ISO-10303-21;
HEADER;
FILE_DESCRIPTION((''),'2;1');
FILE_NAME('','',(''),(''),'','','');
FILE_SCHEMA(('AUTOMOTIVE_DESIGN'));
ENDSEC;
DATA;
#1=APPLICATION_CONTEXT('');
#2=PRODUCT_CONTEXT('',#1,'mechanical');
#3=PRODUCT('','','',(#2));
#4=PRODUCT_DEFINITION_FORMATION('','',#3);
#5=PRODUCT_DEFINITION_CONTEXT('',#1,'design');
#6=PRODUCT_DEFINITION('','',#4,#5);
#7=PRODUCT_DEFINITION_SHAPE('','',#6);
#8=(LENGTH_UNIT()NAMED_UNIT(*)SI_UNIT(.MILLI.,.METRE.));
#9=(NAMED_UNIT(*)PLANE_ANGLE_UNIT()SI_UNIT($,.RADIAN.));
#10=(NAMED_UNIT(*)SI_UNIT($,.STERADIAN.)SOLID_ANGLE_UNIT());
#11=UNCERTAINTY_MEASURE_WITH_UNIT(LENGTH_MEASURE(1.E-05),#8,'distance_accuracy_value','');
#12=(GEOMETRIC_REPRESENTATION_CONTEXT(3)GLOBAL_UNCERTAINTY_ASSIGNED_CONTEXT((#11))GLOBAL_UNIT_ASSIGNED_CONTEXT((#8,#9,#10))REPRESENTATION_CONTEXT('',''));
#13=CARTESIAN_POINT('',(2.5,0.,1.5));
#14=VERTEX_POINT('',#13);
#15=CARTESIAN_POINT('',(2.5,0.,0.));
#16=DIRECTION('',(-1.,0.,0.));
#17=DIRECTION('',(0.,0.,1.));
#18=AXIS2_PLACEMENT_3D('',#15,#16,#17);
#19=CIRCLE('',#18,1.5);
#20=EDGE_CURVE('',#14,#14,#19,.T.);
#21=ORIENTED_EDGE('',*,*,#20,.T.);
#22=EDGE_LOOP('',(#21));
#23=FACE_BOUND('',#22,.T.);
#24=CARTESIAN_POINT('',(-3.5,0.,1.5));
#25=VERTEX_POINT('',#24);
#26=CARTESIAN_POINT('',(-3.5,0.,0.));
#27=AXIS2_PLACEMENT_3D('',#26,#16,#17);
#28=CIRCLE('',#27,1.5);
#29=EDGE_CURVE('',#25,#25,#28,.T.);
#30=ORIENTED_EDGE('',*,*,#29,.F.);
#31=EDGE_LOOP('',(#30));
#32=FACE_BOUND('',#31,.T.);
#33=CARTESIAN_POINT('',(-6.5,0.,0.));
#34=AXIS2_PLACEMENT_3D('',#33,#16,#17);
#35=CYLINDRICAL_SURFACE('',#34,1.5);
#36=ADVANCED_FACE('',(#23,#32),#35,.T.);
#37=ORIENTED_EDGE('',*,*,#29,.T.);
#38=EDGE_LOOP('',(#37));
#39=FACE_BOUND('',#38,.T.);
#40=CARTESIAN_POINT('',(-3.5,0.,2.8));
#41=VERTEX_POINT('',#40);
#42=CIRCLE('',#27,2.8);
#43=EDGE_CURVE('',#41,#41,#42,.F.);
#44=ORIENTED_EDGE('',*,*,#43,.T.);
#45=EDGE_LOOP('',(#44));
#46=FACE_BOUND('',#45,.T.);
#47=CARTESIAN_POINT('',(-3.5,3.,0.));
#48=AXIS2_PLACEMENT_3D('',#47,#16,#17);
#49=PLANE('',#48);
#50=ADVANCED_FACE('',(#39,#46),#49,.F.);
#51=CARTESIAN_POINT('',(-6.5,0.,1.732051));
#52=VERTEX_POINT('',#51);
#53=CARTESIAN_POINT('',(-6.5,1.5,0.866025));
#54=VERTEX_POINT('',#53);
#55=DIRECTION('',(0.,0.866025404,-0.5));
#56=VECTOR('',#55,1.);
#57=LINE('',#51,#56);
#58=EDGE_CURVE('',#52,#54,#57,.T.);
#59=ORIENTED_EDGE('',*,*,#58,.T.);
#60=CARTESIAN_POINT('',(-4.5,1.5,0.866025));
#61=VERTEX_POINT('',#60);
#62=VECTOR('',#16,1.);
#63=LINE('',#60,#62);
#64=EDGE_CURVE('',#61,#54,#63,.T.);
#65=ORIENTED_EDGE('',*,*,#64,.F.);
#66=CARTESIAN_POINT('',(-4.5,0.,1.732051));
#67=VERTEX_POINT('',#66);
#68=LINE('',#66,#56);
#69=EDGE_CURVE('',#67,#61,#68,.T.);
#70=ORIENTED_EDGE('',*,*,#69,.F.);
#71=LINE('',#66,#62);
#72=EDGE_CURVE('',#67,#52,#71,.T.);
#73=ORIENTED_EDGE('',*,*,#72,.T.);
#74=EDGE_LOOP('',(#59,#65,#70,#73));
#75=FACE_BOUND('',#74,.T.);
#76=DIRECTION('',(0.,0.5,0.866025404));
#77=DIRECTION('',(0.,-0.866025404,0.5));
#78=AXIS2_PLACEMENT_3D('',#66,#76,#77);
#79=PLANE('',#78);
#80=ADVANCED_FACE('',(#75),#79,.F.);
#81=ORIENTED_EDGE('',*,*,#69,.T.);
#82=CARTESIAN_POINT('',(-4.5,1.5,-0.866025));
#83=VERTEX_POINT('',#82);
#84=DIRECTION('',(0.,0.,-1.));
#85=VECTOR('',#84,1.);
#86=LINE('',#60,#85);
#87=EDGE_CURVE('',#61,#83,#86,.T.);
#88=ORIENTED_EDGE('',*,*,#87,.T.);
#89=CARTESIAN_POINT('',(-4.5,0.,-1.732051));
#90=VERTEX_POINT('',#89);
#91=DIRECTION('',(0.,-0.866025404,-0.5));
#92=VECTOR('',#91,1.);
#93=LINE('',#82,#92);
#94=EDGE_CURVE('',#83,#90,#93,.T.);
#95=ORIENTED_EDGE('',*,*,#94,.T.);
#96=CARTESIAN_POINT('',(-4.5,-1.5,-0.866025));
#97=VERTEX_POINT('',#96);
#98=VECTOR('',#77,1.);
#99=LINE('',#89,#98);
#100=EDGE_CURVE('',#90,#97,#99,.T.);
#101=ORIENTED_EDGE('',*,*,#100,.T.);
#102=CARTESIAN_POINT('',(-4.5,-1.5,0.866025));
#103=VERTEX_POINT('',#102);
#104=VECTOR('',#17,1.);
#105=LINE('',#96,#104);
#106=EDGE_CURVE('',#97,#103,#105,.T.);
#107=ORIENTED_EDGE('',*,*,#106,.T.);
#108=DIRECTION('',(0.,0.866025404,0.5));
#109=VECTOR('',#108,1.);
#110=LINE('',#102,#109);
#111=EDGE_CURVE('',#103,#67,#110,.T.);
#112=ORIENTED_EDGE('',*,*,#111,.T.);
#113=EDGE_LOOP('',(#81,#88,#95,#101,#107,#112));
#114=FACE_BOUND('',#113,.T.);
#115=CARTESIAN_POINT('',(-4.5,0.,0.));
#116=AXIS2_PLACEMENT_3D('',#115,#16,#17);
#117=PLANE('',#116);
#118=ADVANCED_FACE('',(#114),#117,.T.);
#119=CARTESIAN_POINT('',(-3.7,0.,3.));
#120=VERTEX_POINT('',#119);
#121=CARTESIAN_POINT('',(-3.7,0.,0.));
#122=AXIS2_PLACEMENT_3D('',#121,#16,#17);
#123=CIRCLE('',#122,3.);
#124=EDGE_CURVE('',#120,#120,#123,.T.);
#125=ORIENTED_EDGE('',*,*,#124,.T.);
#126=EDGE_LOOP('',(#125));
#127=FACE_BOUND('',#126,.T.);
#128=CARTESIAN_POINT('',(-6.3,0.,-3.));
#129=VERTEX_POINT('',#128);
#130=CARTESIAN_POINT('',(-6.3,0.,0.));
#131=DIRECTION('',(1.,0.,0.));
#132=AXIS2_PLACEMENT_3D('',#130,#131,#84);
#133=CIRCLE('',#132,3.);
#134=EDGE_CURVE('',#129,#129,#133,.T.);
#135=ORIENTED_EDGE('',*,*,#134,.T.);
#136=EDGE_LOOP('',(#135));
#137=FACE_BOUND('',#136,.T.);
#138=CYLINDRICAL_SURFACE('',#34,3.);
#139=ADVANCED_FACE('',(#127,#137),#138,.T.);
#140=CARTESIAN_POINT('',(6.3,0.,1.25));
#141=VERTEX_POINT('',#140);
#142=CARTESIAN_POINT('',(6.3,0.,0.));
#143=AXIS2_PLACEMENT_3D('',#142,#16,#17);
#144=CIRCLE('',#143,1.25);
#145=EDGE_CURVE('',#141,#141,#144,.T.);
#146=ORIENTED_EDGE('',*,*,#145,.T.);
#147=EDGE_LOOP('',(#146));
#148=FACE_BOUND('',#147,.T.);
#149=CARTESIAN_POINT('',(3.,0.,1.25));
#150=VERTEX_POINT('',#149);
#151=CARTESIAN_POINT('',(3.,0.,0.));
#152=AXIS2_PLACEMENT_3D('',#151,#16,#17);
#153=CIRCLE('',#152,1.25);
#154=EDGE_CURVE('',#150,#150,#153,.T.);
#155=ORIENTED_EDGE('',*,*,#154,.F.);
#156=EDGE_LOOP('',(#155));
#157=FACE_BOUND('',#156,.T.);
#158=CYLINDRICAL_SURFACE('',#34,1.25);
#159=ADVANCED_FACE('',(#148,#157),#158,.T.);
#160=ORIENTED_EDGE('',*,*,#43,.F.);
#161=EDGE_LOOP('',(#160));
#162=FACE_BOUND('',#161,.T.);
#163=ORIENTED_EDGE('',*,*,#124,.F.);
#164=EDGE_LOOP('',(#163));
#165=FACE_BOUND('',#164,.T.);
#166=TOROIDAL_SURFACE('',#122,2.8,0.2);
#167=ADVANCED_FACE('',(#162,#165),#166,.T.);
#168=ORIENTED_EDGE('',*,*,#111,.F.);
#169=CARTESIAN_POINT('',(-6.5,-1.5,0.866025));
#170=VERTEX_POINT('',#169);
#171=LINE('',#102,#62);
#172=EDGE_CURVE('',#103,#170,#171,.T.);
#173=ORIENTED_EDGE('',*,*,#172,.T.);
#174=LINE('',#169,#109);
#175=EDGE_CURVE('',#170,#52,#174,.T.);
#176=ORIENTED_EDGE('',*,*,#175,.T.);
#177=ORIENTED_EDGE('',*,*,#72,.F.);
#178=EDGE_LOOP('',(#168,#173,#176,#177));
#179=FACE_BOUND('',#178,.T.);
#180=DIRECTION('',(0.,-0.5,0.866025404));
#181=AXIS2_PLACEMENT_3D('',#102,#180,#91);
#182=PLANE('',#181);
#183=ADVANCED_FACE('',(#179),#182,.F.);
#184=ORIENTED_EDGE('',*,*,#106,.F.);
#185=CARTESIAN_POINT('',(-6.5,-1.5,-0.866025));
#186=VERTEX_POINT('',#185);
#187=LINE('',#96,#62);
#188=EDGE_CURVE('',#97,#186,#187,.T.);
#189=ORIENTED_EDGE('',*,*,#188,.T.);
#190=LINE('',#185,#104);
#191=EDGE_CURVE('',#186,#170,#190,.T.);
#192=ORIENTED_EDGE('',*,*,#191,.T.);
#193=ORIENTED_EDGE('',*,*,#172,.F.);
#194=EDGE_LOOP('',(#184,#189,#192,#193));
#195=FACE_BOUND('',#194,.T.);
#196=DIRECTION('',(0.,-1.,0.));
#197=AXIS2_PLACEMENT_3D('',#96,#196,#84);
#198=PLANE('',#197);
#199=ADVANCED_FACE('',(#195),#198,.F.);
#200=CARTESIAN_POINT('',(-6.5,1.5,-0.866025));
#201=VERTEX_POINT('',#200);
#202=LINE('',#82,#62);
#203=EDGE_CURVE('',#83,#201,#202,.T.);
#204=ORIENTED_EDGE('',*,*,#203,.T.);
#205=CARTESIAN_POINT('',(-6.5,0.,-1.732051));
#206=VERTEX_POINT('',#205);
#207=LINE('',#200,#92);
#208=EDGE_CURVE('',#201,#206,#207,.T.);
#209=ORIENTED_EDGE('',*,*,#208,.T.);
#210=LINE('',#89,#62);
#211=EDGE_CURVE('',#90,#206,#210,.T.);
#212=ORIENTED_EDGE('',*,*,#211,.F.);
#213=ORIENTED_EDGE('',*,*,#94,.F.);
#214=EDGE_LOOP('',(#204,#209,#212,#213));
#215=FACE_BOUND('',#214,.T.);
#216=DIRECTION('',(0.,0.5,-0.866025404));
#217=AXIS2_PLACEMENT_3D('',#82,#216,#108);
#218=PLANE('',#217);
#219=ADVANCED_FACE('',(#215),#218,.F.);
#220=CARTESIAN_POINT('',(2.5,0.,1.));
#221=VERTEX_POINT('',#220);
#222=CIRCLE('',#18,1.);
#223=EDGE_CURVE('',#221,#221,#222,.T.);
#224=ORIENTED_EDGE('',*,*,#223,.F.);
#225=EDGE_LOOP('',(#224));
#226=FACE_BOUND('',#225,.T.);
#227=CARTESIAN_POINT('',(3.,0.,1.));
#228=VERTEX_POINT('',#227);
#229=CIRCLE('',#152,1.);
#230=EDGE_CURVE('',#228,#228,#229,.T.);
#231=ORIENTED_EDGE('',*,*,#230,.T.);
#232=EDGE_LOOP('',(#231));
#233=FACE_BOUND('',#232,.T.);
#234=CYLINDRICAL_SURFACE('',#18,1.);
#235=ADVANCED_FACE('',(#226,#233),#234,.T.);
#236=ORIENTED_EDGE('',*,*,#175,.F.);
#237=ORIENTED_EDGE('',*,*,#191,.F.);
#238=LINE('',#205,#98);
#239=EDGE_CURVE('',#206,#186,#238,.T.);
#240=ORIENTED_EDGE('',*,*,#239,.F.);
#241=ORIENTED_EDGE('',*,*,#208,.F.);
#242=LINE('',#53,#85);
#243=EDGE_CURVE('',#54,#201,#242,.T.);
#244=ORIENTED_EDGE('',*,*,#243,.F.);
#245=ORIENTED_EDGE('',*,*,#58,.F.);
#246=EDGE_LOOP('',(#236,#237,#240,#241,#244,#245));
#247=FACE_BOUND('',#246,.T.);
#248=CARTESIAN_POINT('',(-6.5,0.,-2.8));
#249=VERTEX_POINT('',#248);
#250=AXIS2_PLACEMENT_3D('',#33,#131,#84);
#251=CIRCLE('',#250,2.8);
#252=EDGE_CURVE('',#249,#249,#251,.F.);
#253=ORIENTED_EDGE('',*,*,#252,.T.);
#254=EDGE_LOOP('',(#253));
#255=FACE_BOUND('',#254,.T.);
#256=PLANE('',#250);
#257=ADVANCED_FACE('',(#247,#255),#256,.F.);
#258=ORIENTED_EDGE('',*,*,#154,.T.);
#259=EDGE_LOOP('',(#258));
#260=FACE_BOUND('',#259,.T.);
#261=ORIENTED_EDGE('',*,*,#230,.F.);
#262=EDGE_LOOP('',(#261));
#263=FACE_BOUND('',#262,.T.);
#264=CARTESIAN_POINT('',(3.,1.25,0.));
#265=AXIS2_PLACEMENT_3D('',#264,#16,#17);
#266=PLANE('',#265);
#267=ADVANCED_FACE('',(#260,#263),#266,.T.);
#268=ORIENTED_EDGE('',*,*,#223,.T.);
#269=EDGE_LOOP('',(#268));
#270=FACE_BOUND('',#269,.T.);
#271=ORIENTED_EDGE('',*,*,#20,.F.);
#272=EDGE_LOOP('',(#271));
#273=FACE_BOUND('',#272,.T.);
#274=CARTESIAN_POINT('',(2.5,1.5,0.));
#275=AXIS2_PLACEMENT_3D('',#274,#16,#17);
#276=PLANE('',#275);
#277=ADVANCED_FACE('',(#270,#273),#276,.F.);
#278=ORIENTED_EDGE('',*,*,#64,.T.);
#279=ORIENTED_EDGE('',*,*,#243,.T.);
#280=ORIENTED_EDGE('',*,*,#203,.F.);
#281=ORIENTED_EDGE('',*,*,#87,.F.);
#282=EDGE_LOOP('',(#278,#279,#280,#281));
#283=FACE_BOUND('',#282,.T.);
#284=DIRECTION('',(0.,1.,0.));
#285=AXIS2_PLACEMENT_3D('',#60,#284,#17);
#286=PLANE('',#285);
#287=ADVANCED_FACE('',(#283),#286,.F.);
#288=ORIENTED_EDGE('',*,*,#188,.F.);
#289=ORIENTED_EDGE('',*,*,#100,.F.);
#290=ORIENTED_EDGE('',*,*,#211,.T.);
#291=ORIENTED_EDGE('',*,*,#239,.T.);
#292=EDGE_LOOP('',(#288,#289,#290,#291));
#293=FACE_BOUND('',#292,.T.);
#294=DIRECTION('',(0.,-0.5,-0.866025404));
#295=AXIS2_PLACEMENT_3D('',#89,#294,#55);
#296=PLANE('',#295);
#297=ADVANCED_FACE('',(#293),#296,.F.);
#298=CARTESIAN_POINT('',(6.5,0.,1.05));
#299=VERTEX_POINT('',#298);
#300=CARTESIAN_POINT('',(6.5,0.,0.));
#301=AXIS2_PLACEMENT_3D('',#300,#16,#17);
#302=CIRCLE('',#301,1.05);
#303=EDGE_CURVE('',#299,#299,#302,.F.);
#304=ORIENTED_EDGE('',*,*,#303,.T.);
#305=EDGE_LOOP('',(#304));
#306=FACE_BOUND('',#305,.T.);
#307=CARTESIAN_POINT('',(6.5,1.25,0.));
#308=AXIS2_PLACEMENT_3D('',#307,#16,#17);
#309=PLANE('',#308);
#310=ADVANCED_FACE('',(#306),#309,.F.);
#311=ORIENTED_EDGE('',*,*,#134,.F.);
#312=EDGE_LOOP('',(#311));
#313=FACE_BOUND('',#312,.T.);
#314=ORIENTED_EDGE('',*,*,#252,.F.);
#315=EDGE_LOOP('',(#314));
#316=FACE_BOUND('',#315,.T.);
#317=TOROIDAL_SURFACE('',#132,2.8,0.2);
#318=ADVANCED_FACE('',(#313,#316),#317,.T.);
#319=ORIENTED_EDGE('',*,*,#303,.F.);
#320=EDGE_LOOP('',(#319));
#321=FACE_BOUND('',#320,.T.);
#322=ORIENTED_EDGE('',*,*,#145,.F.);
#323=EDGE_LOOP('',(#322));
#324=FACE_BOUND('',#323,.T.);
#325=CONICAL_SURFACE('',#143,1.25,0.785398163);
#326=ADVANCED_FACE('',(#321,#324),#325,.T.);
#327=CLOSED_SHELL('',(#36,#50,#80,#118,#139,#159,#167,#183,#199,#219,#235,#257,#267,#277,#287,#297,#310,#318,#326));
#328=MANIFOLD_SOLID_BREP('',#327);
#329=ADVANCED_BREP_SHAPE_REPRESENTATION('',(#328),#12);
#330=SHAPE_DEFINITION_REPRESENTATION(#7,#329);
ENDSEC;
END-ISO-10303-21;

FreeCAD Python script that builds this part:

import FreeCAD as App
import Part
import Sketcher

V = App.Vector
Q = App.Units.Quantity


def edges_at(feature, points):
    """Names of the edges that pass closest to the given points."""
    edges = feature.Shape.Edges
    near = lambda p: min(range(len(edges)), key=lambda i: edges[i].distToShape(Part.Vertex(*p))[0])
    return sorted({f"Edge{near(p) + 1}" for p in points})


def add_polygon(sketch, points):
    """Adds a closed chain of lines whose ends are joined by coincident constraints."""
    first, n = sketch.GeometryCount, len(points)
    for a, b in zip(points, points[1:] + points[:1]):
        sketch.addGeometry(Part.LineSegment(App.Vector(*a, 0), App.Vector(*b, 0)), False)
    for i in range(n):
        sketch.addConstraint(Sketcher.Constraint("Coincident", first + i, 2, first + (i + 1) % n, 1))

doc = App.newDocument("Part")
params = doc.addObject("Spreadsheet::Sheet", "Params")
for row, (alias, value) in enumerate([
    ("sketch1_width", "13 mm"),
    ("sketch1_width2", "4 mm"),
    ("sketch1_width3", "6 mm"),
    ("sketch1_height", "1.5 mm"),
    ("sketch1_height2", "1.25 mm"),
    ("revolution_angle", "360 deg"),
    ("fillet_radius", "0.2 mm"),
    ("chamfer_size", "0.2 mm"),
    ("sketch2_width", "0.5 mm"),
    ("sketch2_height", "0.25 mm"),
    ("groove_angle", "360 deg"),
    ("pocket1_length", "2 mm"),
], start=1):
    params.set(f"A{row}", alias)
    params.set(f"B{row}", "=" + value)
    params.setAlias(f"B{row}", alias)

body = doc.addObject("PartDesign::Body", "Body")

sketch1 = doc.addObject("Sketcher::SketchObject", "Sketch")
body.addObject(sketch1)
sketch1.AttachmentSupport = (doc.XY_Plane, [""])
sketch1.MapMode = "FlatFace"
add_polygon(sketch1, [(-6.5, 3), (-6.5, 0), (6.5, 0), (6.5, 1.25), (2.5, 1.25), (2.5, 1.5), (-3.5, 1.5), (-3.5, 3)])
sketch1.addConstraint([
    Sketcher.Constraint("Vertical", 0),
    Sketcher.Constraint("Horizontal", 1),
    Sketcher.Constraint("Vertical", 2),
    Sketcher.Constraint("Horizontal", 3),
    Sketcher.Constraint("Vertical", 4),
    Sketcher.Constraint("Horizontal", 5),
    Sketcher.Constraint("Vertical", 6),
    Sketcher.Constraint("Horizontal", 7),
    Sketcher.Constraint("Symmetric", 0, 2, 1, 2, -1, 1),
    Sketcher.Constraint("Equal", 7, 0),
    Sketcher.Constraint("DistanceX", 1, 1, 1, 2, 13.0),
    Sketcher.Constraint("DistanceX", 3, 2, 3, 1, 4.0),
    Sketcher.Constraint("DistanceX", 5, 2, 5, 1, 6.0),
    Sketcher.Constraint("DistanceY", 6, 1, 6, 2, 1.5),
    Sketcher.Constraint("DistanceY", 2, 1, 2, 2, 1.25),
])
sketch1.setExpression("Constraints[18]", "Params.sketch1_width")
sketch1.setExpression("Constraints[19]", "Params.sketch1_width2")
sketch1.setExpression("Constraints[20]", "Params.sketch1_width3")
sketch1.setExpression("Constraints[21]", "Params.sketch1_height")
sketch1.setExpression("Constraints[22]", "Params.sketch1_height2")
revolution = doc.addObject("PartDesign::Revolution", "Revolution")
body.addObject(revolution)
revolution.Profile = sketch1
revolution.ReferenceAxis = (sketch1, ["H_Axis"])
revolution.setExpression("Angle", "Params.revolution_angle")
doc.recompute()

fillet = doc.addObject("PartDesign::Fillet", "Fillet")
body.addObject(fillet)
fillet.Base = (revolution, edges_at(revolution, [(-3.5, -3, 0), (-6.5, -3, 0)]))
fillet.setExpression("Radius", "Params.fillet_radius")
doc.recompute()

chamfer = doc.addObject("PartDesign::Chamfer", "Chamfer")
body.addObject(chamfer)
chamfer.Base = (fillet, edges_at(fillet, [(6.5, -1.25, 0)]))
chamfer.setExpression("Size", "Params.chamfer_size")

sketch2 = doc.addObject("Sketcher::SketchObject", "Sketch001")
body.addObject(sketch2)
sketch2.AttachmentSupport = (doc.XY_Plane, [""])
sketch2.MapMode = "FlatFace"
add_polygon(sketch2, [(2.5, 1.25), (2.5, 1), (3, 1), (3, 1.25)])
sketch2.addConstraint([
    Sketcher.Constraint("Vertical", 0),
    Sketcher.Constraint("Horizontal", 1),
    Sketcher.Constraint("Vertical", 2),
    Sketcher.Constraint("Horizontal", 3),
    Sketcher.Constraint("DistanceX", 1, 1, 1, 2, 0.5),
    Sketcher.Constraint("DistanceY", -1, 1, 0, 2, 1.0),
    Sketcher.Constraint("DistanceX", -1, 1, 1, 2, 3.0),
    Sketcher.Constraint("DistanceY", 0, 2, 0, 1, 0.25),
])
sketch2.setExpression("Constraints[8]", "Params.sketch2_width")
sketch2.setExpression("Constraints[11]", "Params.sketch2_height")
groove = doc.addObject("PartDesign::Groove", "Groove")
body.addObject(groove)
groove.Profile = sketch2
groove.ReferenceAxis = (sketch2, ["H_Axis"])
groove.setExpression("Angle", "Params.groove_angle")

sketch3 = doc.addObject("Sketcher::SketchObject", "Sketch002")
body.addObject(sketch3)
sketch3.AttachmentSupport = (doc.YZ_Plane, [""])
sketch3.MapMode = "FlatFace"
sketch3.AttachmentOffset = App.Placement(V(0, 0, -6.5), App.Rotation())
add_polygon(sketch3, [(0, 1.732051), (1.5, 0.866025), (1.5, -0.866025), (0, -1.732051), (-1.5, -0.866025), (-1.5, 0.866025)])
sketch3.addConstraint([
    Sketcher.Constraint("Vertical", 1),
    Sketcher.Constraint("Vertical", 4),
    Sketcher.Constraint("Symmetric", 0, 2, 3, 2, -1, 1),
    Sketcher.Constraint("Symmetric", 2, 2, 5, 2, -1, 1),
    Sketcher.Constraint("PointOnObject", 2, 2, -2),
    Sketcher.Constraint("Parallel", 2, 5),
    Sketcher.Constraint("Horizontal", 1, 2, 3, 2),
    Sketcher.Constraint("Angle", 0, Q("-30 deg")),
    Sketcher.Constraint("DistanceX", 3, 2, 1, 2, 3.0),
    Sketcher.Constraint("DistanceY", 1, 2, 1, 1, 1.732051),
])
pocket1 = doc.addObject("PartDesign::Pocket", "Pocket")
body.addObject(pocket1)
pocket1.Profile = sketch3
pocket1.setExpression("Length", "Params.pocket1_length")
pocket1.Reversed = True

doc.recompute()
